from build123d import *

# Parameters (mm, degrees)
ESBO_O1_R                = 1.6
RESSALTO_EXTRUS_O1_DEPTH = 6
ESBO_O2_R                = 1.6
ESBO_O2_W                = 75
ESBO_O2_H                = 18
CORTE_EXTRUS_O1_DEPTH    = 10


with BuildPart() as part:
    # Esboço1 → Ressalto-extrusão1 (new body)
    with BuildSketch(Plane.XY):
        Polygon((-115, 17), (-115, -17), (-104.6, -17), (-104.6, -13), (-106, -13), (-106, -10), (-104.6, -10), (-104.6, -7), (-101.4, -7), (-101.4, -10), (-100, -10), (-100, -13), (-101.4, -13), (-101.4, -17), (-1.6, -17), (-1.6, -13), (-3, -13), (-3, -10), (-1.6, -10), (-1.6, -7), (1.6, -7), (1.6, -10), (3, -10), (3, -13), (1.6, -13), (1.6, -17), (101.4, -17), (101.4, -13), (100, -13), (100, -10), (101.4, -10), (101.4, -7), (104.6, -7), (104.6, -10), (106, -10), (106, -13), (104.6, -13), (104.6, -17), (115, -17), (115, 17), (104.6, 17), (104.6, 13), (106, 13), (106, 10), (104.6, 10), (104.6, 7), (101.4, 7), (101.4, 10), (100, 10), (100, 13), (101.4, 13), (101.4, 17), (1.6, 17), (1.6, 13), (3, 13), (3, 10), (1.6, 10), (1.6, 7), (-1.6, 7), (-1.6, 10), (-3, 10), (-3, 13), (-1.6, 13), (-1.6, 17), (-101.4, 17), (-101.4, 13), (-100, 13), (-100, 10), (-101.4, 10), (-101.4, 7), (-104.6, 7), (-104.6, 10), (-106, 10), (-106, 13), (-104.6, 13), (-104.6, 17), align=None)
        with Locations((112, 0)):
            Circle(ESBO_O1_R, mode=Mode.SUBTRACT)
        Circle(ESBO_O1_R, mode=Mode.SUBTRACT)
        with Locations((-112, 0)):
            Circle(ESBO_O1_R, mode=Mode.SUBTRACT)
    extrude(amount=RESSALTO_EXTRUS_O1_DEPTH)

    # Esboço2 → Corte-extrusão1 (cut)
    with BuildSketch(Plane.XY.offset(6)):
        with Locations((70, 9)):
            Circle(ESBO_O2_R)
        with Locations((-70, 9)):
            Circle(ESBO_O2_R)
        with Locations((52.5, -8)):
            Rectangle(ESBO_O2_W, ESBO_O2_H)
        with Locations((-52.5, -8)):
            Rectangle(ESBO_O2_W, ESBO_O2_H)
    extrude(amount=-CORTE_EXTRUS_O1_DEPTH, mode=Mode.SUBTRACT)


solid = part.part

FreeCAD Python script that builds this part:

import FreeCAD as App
import Part
import Sketcher
Q = App.Units.Quantity


def add_polygon(sketch, points):
    """Adds a closed chain of lines whose ends are joined by coincident constraints."""
    first, n = sketch.GeometryCount, len(points)
    for a, b in zip(points, points[1:] + points[:1]):
        sketch.addGeometry(Part.LineSegment(App.Vector(*a, 0), App.Vector(*b, 0)), False)
    for i in range(n):
        sketch.addConstraint(Sketcher.Constraint("Coincident", first + i, 2, first + (i + 1) % n, 1))

doc = App.newDocument("Part")
body = doc.addObject("PartDesign::Body", "Body")

# Sketch on XY plane
sketch1 = doc.addObject("Sketcher::SketchObject", "Sketch")
body.addObject(sketch1)
sketch1.AttachmentSupport = (doc.XY_Plane, [""])
sketch1.MapMode = "FlatFace"
add_polygon(sketch1, [(-115, 17), (-115, -17), (-104.6, -17), (-104.6, -13), (-106, -13), (-106, -10), (-104.6, -10), (-104.6, -7), (-101.4, -7), (-101.4, -10), (-100, -10), (-100, -13), (-101.4, -13), (-101.4, -17), (-1.6, -17), (-1.6, -13), (-3, -13), (-3, -10), (-1.6, -10), (-1.6, -7), (1.6, -7), (1.6, -10), (3, -10), (3, -13), (1.6, -13), (1.6, -17), (101.4, -17), (101.4, -13), (100, -13), (100, -10), (101.4, -10), (101.4, -7), (104.6, -7), (104.6, -10), (106, -10), (106, -13), (104.6, -13), (104.6, -17), (115, -17), (115, 17), (104.6, 17), (104.6, 13), (106, 13), (106, 10), (104.6, 10), (104.6, 7), (101.4, 7), (101.4, 10), (100, 10), (100, 13), (101.4, 13), (101.4, 17), (1.6, 17), (1.6, 13), (3, 13), (3, 10), (1.6, 10), (1.6, 7), (-1.6, 7), (-1.6, 10), (-3, 10), (-3, 13), (-1.6, 13), (-1.6, 17), (-101.4, 17), (-101.4, 13), (-100, 13), (-100, 10), (-101.4, 10), (-101.4, 7), (-104.6, 7), (-104.6, 10), (-106, 10), (-106, 13), (-104.6, 13), (-104.6, 17)])  # lines 0-75
sketch1.addGeometry(Part.Circle(App.Vector(-112, 0, 0), App.Vector(0, 0, 1), 1.6), False)  # 76
sketch1.addGeometry(Part.Circle(App.Vector(0, 0, 0), App.Vector(0, 0, 1), 1.6), False)  # 77
sketch1.addGeometry(Part.Circle(App.Vector(112, 0, 0), App.Vector(0, 0, 1), 1.6), False)  # 78
sketch1.addConstraint([
    Sketcher.Constraint("Vertical", 0),
    Sketcher.Constraint("Horizontal", 1),
    Sketcher.Constraint("Vertical", 2),
    Sketcher.Constraint("Horizontal", 3),
    Sketcher.Constraint("Vertical", 4),
    Sketcher.Constraint("Horizontal", 5),
    Sketcher.Constraint("Vertical", 6),
    Sketcher.Constraint("Horizontal", 7),
    Sketcher.Constraint("Vertical", 8),
    Sketcher.Constraint("Horizontal", 9),
    Sketcher.Constraint("Vertical", 10),
    Sketcher.Constraint("Horizontal", 11),
    Sketcher.Constraint("Vertical", 12),
    Sketcher.Constraint("Horizontal", 13),
    Sketcher.Constraint("Vertical", 14),
    Sketcher.Constraint("Horizontal", 15),
    Sketcher.Constraint("Vertical", 16),
    Sketcher.Constraint("Horizontal", 17),
    Sketcher.Constraint("Vertical", 18),
    Sketcher.Constraint("Horizontal", 19),
    Sketcher.Constraint("Vertical", 20),
    Sketcher.Constraint("Horizontal", 21),
    Sketcher.Constraint("Vertical", 22),
    Sketcher.Constraint("Horizontal", 23),
    Sketcher.Constraint("Vertical", 24),
    Sketcher.Constraint("Horizontal", 25),
    Sketcher.Constraint("Vertical", 26),
    Sketcher.Constraint("Horizontal", 27),
    Sketcher.Constraint("Vertical", 28),
    Sketcher.Constraint("Horizontal", 29),
    Sketcher.Constraint("Vertical", 30),
    Sketcher.Constraint("Horizontal", 31),
    Sketcher.Constraint("Vertical", 32),
    Sketcher.Constraint("Horizontal", 33),
    Sketcher.Constraint("Vertical", 34),
    Sketcher.Constraint("Horizontal", 35),
    Sketcher.Constraint("Vertical", 36),
    Sketcher.Constraint("Horizontal", 37),
    Sketcher.Constraint("Vertical", 38),
    Sketcher.Constraint("Horizontal", 39),
    Sketcher.Constraint("Vertical", 40),
    Sketcher.Constraint("Horizontal", 41),
    Sketcher.Constraint("Vertical", 42),
    Sketcher.Constraint("Horizontal", 43),
    Sketcher.Constraint("Vertical", 44),
    Sketcher.Constraint("Horizontal", 45),
    Sketcher.Constraint("Vertical", 46),
    Sketcher.Constraint("Horizontal", 47),
    Sketcher.Constraint("Vertical", 48),
    Sketcher.Constraint("Horizontal", 49),
    Sketcher.Constraint("Vertical", 50),
    Sketcher.Constraint("Horizontal", 51),
    Sketcher.Constraint("Vertical", 52),
    Sketcher.Constraint("Horizontal", 53),
    Sketcher.Constraint("Vertical", 54),
    Sketcher.Constraint("Horizontal", 55),
    Sketcher.Constraint("Vertical", 56),
    Sketcher.Constraint("Horizontal", 57),
    Sketcher.Constraint("Vertical", 58),
    Sketcher.Constraint("Horizontal", 59),
    Sketcher.Constraint("Vertical", 60),
    Sketcher.Constraint("Horizontal", 61),
    Sketcher.Constraint("Vertical", 62),
    Sketcher.Constraint("Horizontal", 63),
    Sketcher.Constraint("Vertical", 64),
    Sketcher.Constraint("Horizontal", 65),
    Sketcher.Constraint("Vertical", 66),
    Sketcher.Constraint("Horizontal", 67),
    Sketcher.Constraint("Vertical", 68),
    Sketcher.Constraint("Horizontal", 69),
    Sketcher.Constraint("Vertical", 70),
    Sketcher.Constraint("Horizontal", 71),
    Sketcher.Constraint("Vertical", 72),
    Sketcher.Constraint("Horizontal", 73),
    Sketcher.Constraint("Vertical", 74),
    Sketcher.Constraint("Horizontal", 75),
    Sketcher.Constraint("Coincident", 77, 3, -1, 1),
    Sketcher.Constraint("Equal", 76, 77),
    Sketcher.Constraint("Equal", 77, 78),
    Sketcher.Constraint("Symmetric", 76, 3, 78, 3, -1, 1),
    Sketcher.Constraint("Symmetric", 0, 2, 38, 2, -1, 1),
    Sketcher.Constraint("Symmetric", 2, 2, 40, 2, -1, 1),
    Sketcher.Constraint("Symmetric", 4, 2, 42, 2, -1, 1),
    Sketcher.Constraint("Symmetric", 6, 2, 44, 2, -1, 1),
    Sketcher.Constraint("Symmetric", 8, 2, 46, 2, -1, 1),
    Sketcher.Constraint("Symmetric", 10, 2, 48, 2, -1, 1),
    Sketcher.Constraint("Symmetric", 12, 2, 50, 2, -1, 1),
    Sketcher.Constraint("Symmetric", 14, 2, 52, 2, -1, 1),
    Sketcher.Constraint("Symmetric", 16, 2, 54, 2, -1, 1),
    Sketcher.Constraint("Symmetric", 18, 2, 56, 2, -1, 1),
    Sketcher.Constraint("Symmetric", 20, 2, 58, 2, -1, 1),
    Sketcher.Constraint("Symmetric", 22, 2, 60, 2, -1, 1),
    Sketcher.Constraint("Symmetric", 24, 2, 62, 2, -1, 1),
    Sketcher.Constraint("Symmetric", 26, 2, 64, 2, -1, 1),
    Sketcher.Constraint("Symmetric", 28, 2, 66, 2, -1, 1),
    Sketcher.Constraint("Symmetric", 30, 2, 68, 2, -1, 1),
    Sketcher.Constraint("Symmetric", 32, 2, 70, 2, -1, 1),
    Sketcher.Constraint("Symmetric", 34, 2, 72, 2, -1, 1),
    Sketcher.Constraint("Symmetric", 36, 2, 74, 2, -1, 1),
    Sketcher.Constraint("Symmetric", 17, 2, 20, 2, -2),
    Sketcher.Constraint("Symmetric", 15, 2, 22, 2, -2),
    Sketcher.Constraint("Symmetric", 13, 2, 24, 2, -2),
    Sketcher.Constraint("Symmetric", 11, 2, 26, 2, -2),
    Sketcher.Constraint("Symmetric", 9, 2, 28, 2, -2),
    Sketcher.Constraint("Symmetric", 7, 2, 30, 2, -2),
    Sketcher.Constraint("Symmetric", 5, 2, 32, 2, -2),
    Sketcher.Constraint("Symmetric", 3, 2, 34, 2, -2),
    Sketcher.Constraint("Symmetric", 1, 2, 36, 2, -2),
    Sketcher.Constraint("PointOnObject", 76, 3, -1),
    Sketcher.Constraint("Horizontal", 5, 2, 8, 2),
    Sketcher.Constraint("Horizontal", 3, 2, 10, 2),
    Sketcher.Constraint("Horizontal", 1, 2, 12, 2),
    Sketcher.Constraint("Horizontal", 11, 2, 14, 2),
    Sketcher.Constraint("Horizontal", 9, 2, 16, 2),
    Sketcher.Constraint("Horizontal", 7, 2, 18, 2),
    Sketcher.Constraint("Vertical", 2, 2, 5, 2),
    Sketcher.Constraint("Vertical", 8, 2, 11, 2),
    Sketcher.Constraint("Vertical", 14, 2, 17, 2),
    Sketcher.Constraint("Equal", 5, 9),
    Sketcher.Constraint("Equal", 11, 15),
    Sketcher.Constraint("Equal", 7, 19),
    Sketcher.Constraint("Equal", 4, 6),
    Sketcher.Constraint("Diameter", 76, Q("3.2 mm")),
    Sketcher.Constraint("DistanceY", 0, 2, 0, 1, Q("34 mm")),
    Sketcher.Constraint("DistanceY", 2, 1, 2, 2, Q("4 mm")),
    Sketcher.Constraint("DistanceY", 4, 1, 4, 2, Q("3 mm")),
    Sketcher.Constraint("DistanceX", 1, 1, 1, 2, Q("10.4 mm")),
    Sketcher.Constraint("DistanceX", 3, 2, 3, 1, Q("1.4 mm")),
    Sketcher.Constraint("DistanceX", 7, 1, 7, 2, Q("3.2 mm")),
    Sketcher.Constraint("DistanceX", 13, 1, 13, 2, Q("99.8 mm")),
    Sketcher.Constraint("DistanceX", 76, 3, -1, 1, Q("112 mm")),
])
pad1 = doc.addObject("PartDesign::Pad", "Pad")
body.addObject(pad1)
pad1.Profile = sketch1
pad1.Length = 6

# Sketch on XY plane
sketch2 = doc.addObject("Sketcher::SketchObject", "Sketch001")
body.addObject(sketch2)
sketch2.AttachmentSupport = (doc.XY_Plane, [""])
sketch2.MapMode = "FlatFace"
sketch2.AttachmentOffset = App.Placement(App.Vector(0, 0, 6), App.Rotation())
sketch2.addGeometry(Part.Circle(App.Vector(70, 9, 0), App.Vector(0, 0, 1), 1.6), False)  # 0
sketch2.addGeometry(Part.Circle(App.Vector(-70, 9, 0), App.Vector(0, 0, 1), 1.6), False)  # 1
add_polygon(sketch2, [(15, 1), (15, -17), (90, -17), (90, 1)])  # lines 2-5
add_polygon(sketch2, [(-90, 1), (-90, -17), (-15, -17), (-15, 1)])  # lines 6-9
sketch2.addConstraint([
    Sketcher.Constraint("Vertical", 2),
    Sketcher.Constraint("Horizontal", 3),
    Sketcher.Constraint("Vertical", 4),
    Sketcher.Constraint("Horizontal", 5),
    Sketcher.Constraint("Vertical", 6),
    Sketcher.Constraint("Horizontal", 7),
    Sketcher.Constraint("Vertical", 8),
    Sketcher.Constraint("Horizontal", 9),
    Sketcher.Constraint("Equal", 0, 1),
    Sketcher.Constraint("Symmetric", 0, 3, 1, 3, -2),
    Sketcher.Constraint("Symmetric", 3, 2, 6, 2, -2),
    Sketcher.Constraint("Symmetric", 5, 2, 8, 2, -2),
    Sketcher.Constraint("Diameter", 0, Q("3.2 mm")),
    Sketcher.Constraint("DistanceX", 3, 1, 3, 2, Q("75 mm")),
    Sketcher.Constraint("DistanceY", 2, 2, 2, 1, Q("18 mm")),
    Sketcher.Constraint("DistanceX", -1, 1, 0, 3, Q("70 mm")),
    Sketcher.Constraint("DistanceY", -1, 1, 0, 3, Q("9 mm")),
    Sketcher.Constraint("DistanceX", -1, 1, 2, 2, Q("15 mm")),
    Sketcher.Constraint("DistanceY", 2, 2, -1, 1, Q("17 mm")),
])
pocket1 = doc.addObject("PartDesign::Pocket", "Pocket")
body.addObject(pocket1)
pocket1.Profile = sketch2
pocket1.Length = 10

doc.recompute()
